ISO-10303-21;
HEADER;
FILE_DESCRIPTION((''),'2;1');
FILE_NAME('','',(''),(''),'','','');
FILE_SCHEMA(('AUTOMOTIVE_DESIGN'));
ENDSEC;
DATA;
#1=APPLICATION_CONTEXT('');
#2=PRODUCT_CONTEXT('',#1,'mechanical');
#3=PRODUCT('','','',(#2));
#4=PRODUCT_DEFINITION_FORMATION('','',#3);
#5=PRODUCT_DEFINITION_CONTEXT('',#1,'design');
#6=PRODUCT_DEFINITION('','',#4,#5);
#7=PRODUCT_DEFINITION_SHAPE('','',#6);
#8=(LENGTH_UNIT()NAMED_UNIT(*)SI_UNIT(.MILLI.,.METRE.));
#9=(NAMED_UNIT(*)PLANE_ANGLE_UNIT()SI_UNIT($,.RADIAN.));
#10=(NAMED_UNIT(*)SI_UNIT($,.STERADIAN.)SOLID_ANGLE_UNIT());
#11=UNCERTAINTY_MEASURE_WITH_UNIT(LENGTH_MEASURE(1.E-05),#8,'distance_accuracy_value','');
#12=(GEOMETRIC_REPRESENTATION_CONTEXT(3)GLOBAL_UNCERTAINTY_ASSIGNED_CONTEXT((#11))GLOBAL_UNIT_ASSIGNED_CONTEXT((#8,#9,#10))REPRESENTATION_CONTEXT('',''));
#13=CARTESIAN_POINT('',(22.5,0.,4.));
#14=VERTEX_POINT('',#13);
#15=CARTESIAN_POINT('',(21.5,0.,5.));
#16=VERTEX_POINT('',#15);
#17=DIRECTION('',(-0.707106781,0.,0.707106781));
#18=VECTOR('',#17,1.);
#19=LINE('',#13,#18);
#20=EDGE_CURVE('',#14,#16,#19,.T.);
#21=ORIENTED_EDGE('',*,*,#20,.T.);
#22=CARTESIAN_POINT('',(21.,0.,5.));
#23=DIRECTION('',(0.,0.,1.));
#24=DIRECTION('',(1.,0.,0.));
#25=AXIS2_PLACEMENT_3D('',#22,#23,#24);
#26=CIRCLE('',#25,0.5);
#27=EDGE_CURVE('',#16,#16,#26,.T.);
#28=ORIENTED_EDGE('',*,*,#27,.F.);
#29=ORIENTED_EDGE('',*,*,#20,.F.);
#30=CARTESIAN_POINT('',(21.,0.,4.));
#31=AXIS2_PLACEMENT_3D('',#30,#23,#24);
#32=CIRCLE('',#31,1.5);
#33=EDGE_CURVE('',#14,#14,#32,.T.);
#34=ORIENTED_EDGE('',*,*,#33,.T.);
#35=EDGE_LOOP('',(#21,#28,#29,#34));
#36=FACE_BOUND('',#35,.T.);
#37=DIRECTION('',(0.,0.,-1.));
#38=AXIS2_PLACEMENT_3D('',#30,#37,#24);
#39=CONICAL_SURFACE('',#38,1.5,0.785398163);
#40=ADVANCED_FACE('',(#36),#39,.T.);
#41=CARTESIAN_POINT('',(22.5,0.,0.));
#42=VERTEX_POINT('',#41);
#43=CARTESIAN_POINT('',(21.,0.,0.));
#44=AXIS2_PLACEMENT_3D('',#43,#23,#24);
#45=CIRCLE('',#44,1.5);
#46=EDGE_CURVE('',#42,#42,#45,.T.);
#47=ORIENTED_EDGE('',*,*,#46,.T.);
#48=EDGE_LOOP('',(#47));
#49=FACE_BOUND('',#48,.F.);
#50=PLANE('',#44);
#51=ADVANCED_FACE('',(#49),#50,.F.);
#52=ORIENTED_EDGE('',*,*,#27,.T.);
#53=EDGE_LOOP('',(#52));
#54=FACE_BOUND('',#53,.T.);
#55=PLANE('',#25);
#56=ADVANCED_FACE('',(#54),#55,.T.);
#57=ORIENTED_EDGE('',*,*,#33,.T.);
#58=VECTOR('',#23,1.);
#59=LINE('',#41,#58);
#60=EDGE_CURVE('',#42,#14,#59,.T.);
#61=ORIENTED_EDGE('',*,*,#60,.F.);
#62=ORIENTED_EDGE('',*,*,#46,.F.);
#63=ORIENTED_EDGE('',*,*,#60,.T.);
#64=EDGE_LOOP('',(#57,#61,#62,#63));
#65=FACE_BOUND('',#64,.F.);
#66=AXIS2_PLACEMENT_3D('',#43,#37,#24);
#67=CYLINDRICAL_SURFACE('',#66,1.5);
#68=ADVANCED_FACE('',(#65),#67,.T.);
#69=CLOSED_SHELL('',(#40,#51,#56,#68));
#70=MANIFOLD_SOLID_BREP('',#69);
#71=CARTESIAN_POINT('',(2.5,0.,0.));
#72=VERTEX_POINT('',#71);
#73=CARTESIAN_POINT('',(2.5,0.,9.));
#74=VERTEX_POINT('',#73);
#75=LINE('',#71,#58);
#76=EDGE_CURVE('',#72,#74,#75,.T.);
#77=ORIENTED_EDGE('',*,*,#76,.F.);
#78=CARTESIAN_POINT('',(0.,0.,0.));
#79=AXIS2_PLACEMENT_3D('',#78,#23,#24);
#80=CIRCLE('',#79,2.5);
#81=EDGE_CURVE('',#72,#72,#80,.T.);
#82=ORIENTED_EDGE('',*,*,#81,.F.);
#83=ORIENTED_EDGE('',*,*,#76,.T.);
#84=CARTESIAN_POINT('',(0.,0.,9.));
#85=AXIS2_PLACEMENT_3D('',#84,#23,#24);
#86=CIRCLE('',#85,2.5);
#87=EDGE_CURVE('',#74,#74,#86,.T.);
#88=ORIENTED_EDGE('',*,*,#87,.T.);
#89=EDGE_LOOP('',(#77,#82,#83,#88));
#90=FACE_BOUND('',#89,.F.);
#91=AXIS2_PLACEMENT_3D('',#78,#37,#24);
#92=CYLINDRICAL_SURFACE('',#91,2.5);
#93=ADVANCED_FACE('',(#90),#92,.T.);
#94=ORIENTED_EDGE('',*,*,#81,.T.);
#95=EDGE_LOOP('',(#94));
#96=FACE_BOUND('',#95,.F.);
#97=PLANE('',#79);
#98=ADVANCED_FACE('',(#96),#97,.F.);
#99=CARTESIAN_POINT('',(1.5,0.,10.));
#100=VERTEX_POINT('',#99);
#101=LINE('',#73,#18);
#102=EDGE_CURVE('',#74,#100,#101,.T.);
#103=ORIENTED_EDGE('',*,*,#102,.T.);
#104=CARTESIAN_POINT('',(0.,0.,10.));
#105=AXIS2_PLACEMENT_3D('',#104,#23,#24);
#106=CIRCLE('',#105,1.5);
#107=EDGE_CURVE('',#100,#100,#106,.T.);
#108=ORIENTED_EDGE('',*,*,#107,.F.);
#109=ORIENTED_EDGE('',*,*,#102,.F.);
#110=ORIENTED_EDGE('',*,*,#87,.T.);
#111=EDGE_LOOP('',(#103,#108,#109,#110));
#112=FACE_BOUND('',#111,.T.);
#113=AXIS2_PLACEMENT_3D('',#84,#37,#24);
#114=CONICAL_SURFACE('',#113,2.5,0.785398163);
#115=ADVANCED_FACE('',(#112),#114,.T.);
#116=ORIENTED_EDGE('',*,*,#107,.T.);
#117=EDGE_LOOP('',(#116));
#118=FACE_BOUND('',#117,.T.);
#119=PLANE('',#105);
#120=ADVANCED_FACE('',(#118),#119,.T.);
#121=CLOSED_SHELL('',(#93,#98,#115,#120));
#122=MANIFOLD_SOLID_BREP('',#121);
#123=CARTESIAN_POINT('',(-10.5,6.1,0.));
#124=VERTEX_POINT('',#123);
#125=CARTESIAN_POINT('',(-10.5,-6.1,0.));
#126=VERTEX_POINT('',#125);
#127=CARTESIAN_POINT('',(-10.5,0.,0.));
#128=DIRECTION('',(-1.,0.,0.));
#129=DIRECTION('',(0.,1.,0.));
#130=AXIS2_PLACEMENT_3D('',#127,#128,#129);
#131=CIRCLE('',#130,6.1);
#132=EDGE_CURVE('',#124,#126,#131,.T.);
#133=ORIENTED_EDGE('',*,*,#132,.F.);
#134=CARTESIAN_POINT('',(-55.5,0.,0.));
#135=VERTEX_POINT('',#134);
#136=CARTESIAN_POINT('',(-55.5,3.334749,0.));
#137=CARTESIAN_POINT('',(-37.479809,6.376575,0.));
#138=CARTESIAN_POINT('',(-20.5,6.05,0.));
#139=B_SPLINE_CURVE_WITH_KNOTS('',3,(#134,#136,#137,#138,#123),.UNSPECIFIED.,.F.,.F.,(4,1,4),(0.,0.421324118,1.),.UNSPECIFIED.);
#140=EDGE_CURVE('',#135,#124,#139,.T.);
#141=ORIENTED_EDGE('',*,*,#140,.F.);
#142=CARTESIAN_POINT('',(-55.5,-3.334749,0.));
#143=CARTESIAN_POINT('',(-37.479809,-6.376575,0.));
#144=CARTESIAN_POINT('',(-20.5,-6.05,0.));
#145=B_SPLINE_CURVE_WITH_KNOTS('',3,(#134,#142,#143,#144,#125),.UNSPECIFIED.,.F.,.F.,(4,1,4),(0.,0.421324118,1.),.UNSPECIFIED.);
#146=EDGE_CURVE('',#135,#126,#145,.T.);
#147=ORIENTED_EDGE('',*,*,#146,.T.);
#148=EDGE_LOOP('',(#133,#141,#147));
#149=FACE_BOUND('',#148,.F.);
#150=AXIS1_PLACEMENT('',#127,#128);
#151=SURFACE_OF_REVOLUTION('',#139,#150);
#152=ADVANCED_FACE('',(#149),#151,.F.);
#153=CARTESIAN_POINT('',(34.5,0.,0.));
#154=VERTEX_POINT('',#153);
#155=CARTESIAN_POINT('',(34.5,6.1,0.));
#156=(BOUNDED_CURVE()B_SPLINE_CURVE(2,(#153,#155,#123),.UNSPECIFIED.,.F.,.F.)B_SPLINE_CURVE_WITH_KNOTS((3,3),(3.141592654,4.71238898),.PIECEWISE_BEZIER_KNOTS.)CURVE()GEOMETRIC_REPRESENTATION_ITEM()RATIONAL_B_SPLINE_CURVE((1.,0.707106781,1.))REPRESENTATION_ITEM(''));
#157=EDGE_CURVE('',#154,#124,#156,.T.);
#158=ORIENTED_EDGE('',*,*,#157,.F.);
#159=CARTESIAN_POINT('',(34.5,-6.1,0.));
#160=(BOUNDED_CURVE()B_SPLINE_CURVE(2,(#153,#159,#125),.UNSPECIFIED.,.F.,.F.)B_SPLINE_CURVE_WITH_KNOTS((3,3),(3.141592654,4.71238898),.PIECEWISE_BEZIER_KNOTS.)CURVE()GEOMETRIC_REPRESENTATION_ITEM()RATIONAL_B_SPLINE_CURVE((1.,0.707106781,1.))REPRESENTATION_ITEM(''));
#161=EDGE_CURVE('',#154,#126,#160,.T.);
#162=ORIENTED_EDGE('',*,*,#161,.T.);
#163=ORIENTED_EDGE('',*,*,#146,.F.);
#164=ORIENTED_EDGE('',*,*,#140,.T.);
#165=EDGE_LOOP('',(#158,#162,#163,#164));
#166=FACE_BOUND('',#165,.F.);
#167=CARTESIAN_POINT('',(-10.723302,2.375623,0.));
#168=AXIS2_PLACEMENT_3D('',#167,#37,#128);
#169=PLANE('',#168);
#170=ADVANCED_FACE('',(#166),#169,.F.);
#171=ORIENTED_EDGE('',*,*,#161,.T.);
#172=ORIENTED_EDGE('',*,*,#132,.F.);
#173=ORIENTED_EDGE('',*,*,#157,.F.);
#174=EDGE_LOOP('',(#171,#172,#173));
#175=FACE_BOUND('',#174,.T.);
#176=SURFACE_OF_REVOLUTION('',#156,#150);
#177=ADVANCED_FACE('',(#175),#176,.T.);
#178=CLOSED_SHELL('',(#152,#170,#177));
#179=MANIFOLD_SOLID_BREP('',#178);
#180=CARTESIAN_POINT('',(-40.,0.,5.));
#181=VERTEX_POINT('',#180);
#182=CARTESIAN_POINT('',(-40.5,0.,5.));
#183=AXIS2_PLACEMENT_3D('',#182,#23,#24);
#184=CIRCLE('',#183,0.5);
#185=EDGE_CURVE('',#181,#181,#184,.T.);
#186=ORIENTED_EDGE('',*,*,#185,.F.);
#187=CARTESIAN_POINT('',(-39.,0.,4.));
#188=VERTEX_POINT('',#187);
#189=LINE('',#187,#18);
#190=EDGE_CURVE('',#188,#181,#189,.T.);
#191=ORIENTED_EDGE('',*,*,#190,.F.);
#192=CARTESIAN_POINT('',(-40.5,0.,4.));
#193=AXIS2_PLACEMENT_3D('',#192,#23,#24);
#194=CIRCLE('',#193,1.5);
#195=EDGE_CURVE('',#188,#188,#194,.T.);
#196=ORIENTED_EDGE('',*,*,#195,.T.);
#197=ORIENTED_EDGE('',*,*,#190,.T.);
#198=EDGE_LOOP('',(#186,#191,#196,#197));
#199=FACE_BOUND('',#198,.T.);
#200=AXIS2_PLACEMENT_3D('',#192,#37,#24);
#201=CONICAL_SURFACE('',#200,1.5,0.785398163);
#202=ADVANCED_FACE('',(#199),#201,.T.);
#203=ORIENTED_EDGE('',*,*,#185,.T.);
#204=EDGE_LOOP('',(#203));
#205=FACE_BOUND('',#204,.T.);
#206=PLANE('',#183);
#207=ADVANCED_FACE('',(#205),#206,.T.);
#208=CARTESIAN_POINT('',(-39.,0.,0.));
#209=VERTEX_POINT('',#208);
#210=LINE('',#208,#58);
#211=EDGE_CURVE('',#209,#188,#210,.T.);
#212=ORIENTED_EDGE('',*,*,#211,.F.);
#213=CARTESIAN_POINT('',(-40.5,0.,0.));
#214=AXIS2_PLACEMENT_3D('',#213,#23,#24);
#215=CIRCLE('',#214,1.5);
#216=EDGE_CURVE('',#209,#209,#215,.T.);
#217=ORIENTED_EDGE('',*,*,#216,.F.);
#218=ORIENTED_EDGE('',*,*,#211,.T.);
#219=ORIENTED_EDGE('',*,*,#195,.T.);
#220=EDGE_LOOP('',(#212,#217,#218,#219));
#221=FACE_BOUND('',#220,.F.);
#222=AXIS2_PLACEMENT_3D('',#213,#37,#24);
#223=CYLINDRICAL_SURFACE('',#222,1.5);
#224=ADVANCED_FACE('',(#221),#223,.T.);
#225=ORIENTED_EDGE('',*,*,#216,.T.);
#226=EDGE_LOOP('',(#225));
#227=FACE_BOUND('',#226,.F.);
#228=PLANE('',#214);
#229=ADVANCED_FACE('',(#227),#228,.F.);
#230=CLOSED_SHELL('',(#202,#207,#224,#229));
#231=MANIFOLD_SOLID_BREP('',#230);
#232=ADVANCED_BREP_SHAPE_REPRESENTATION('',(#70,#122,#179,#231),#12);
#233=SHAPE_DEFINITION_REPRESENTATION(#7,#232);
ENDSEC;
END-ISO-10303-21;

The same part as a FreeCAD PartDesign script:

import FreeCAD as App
import Part
import Sketcher

V = App.Vector


def edges_at(feature, points):
    """Names of the edges that pass closest to the given points."""
    edges = feature.Shape.Edges
    near = lambda p: min(range(len(edges)), key=lambda i: edges[i].distToShape(Part.Vertex(*p))[0])
    return sorted({f"Edge{near(p) + 1}" for p in points})

doc = App.newDocument("Part")
body = doc.addObject("PartDesign::Body", "Body")

sketch1 = body.newObject("Sketcher::SketchObject", "Sketch")
sketch1.AttachmentSupport = (doc.getObject("XY_Plane"), [""])
sketch1.MapMode = "FlatFace"
sketch1.addGeometry(Part.Circle(V(-40.5, 0, 0), V(0, 0, 1), 1.5), False)
sketch1.addConstraint([
    Sketcher.Constraint("PointOnObject", 0, 3, -1),
    Sketcher.Constraint("Diameter", 0, 3.0),
    Sketcher.Constraint("DistanceX", 0, 3, -1, 1, 40.5),
])
pad1 = body.newObject("PartDesign::Pad", "Pad")
pad1.Profile = sketch1
pad1.Length = 5
doc.recompute()

chamfer = body.newObject("PartDesign::Chamfer", "Chamfer")
chamfer.Base = (pad1, edges_at(pad1, [(-42, 0, 5)]))
chamfer.Size = 1
body2 = doc.addObject("PartDesign::Body", "Body001")

sketch2 = body2.newObject("Sketcher::SketchObject", "Sketch001")
sketch2.AttachmentSupport = (doc.getObject("XY_Plane001"), [""])
sketch2.MapMode = "FlatFace"
sketch2.addGeometry(Part.Circle(V(21, 0, 0), V(0, 0, 1), 1.5), False)
sketch2.addConstraint([
    Sketcher.Constraint("PointOnObject", 0, 3, -1),
    Sketcher.Constraint("Diameter", 0, 3.0),
    Sketcher.Constraint("DistanceX", -1, 1, 0, 3, 21.0),
])
pad2 = body2.newObject("PartDesign::Pad", "Pad001")
pad2.Profile = sketch2
pad2.Length = 5
doc.recompute()

chamfer2 = body2.newObject("PartDesign::Chamfer", "Chamfer001")
chamfer2.Base = (pad2, edges_at(pad2, [(19.5, 0, 5)]))
chamfer2.Size = 1
body3 = doc.addObject("PartDesign::Body", "Body002")

sketch3 = body3.newObject("Sketcher::SketchObject", "Sketch002")
sketch3.AttachmentSupport = (doc.getObject("XY_Plane002"), [""])
sketch3.MapMode = "FlatFace"
sketch3.addGeometry(Part.Circle(V(0, 0, 0), V(0, 0, 1), 2.5), False)
sketch3.addConstraint([
    Sketcher.Constraint("Coincident", 0, 3, -1, 1),
    Sketcher.Constraint("Diameter", 0, 5.0),
])
pad3 = body3.newObject("PartDesign::Pad", "Pad002")
pad3.Profile = sketch3
pad3.Length = 10
doc.recompute()

chamfer3 = body3.newObject("PartDesign::Chamfer", "Chamfer002")
chamfer3.Base = (pad3, edges_at(pad3, [(-2.5, 0, 10)]))
chamfer3.Size = 1
body4 = doc.addObject("PartDesign::Body", "Body003")

sketch4 = body4.newObject("Sketcher::SketchObject", "Sketch003")
sketch4.AttachmentSupport = (doc.getObject("XY_Plane003"), [""])
sketch4.MapMode = "FlatFace"
sketch4.addGeometry([
    Part.BSplineCurve([V(-55.5, 0, 0), V(-55.5, 3.334749, 0), V(-37.479809, 6.376575, 0), V(-20.5, 6.05, 0), V(-10.5, 6.1, 0)], [4, 1, 4], [0, 0.421324118, 1], False, 3, [1, 1, 1, 1, 1], False),
    Part.LineSegment(V(-55.5, 0, 0), V(34.5, 0, 0)),
    Part.BSplineCurve([V(34.5, 0, 0), V(34.5, 6.1, 0), V(-10.5, 6.1, 0)], [3, 3], [3.141592654, 4.71238898], False, 2, [1, 0.707106781, 1], False),
], False)
sketch4.addConstraint([
    Sketcher.Constraint("Block", 0),
    Sketcher.Constraint("Block", 2),
    Sketcher.Constraint("Coincident", 0, 1, 1, 1),
    Sketcher.Constraint("Coincident", 1, 2, 2, 1),
])
revolution = body4.newObject("PartDesign::Revolution", "Revolution")
revolution.Profile = sketch4
revolution.ReferenceAxis = (sketch4, ["H_Axis"])
revolution.Angle = 180
revolution.Reversed = True

doc.recompute()
